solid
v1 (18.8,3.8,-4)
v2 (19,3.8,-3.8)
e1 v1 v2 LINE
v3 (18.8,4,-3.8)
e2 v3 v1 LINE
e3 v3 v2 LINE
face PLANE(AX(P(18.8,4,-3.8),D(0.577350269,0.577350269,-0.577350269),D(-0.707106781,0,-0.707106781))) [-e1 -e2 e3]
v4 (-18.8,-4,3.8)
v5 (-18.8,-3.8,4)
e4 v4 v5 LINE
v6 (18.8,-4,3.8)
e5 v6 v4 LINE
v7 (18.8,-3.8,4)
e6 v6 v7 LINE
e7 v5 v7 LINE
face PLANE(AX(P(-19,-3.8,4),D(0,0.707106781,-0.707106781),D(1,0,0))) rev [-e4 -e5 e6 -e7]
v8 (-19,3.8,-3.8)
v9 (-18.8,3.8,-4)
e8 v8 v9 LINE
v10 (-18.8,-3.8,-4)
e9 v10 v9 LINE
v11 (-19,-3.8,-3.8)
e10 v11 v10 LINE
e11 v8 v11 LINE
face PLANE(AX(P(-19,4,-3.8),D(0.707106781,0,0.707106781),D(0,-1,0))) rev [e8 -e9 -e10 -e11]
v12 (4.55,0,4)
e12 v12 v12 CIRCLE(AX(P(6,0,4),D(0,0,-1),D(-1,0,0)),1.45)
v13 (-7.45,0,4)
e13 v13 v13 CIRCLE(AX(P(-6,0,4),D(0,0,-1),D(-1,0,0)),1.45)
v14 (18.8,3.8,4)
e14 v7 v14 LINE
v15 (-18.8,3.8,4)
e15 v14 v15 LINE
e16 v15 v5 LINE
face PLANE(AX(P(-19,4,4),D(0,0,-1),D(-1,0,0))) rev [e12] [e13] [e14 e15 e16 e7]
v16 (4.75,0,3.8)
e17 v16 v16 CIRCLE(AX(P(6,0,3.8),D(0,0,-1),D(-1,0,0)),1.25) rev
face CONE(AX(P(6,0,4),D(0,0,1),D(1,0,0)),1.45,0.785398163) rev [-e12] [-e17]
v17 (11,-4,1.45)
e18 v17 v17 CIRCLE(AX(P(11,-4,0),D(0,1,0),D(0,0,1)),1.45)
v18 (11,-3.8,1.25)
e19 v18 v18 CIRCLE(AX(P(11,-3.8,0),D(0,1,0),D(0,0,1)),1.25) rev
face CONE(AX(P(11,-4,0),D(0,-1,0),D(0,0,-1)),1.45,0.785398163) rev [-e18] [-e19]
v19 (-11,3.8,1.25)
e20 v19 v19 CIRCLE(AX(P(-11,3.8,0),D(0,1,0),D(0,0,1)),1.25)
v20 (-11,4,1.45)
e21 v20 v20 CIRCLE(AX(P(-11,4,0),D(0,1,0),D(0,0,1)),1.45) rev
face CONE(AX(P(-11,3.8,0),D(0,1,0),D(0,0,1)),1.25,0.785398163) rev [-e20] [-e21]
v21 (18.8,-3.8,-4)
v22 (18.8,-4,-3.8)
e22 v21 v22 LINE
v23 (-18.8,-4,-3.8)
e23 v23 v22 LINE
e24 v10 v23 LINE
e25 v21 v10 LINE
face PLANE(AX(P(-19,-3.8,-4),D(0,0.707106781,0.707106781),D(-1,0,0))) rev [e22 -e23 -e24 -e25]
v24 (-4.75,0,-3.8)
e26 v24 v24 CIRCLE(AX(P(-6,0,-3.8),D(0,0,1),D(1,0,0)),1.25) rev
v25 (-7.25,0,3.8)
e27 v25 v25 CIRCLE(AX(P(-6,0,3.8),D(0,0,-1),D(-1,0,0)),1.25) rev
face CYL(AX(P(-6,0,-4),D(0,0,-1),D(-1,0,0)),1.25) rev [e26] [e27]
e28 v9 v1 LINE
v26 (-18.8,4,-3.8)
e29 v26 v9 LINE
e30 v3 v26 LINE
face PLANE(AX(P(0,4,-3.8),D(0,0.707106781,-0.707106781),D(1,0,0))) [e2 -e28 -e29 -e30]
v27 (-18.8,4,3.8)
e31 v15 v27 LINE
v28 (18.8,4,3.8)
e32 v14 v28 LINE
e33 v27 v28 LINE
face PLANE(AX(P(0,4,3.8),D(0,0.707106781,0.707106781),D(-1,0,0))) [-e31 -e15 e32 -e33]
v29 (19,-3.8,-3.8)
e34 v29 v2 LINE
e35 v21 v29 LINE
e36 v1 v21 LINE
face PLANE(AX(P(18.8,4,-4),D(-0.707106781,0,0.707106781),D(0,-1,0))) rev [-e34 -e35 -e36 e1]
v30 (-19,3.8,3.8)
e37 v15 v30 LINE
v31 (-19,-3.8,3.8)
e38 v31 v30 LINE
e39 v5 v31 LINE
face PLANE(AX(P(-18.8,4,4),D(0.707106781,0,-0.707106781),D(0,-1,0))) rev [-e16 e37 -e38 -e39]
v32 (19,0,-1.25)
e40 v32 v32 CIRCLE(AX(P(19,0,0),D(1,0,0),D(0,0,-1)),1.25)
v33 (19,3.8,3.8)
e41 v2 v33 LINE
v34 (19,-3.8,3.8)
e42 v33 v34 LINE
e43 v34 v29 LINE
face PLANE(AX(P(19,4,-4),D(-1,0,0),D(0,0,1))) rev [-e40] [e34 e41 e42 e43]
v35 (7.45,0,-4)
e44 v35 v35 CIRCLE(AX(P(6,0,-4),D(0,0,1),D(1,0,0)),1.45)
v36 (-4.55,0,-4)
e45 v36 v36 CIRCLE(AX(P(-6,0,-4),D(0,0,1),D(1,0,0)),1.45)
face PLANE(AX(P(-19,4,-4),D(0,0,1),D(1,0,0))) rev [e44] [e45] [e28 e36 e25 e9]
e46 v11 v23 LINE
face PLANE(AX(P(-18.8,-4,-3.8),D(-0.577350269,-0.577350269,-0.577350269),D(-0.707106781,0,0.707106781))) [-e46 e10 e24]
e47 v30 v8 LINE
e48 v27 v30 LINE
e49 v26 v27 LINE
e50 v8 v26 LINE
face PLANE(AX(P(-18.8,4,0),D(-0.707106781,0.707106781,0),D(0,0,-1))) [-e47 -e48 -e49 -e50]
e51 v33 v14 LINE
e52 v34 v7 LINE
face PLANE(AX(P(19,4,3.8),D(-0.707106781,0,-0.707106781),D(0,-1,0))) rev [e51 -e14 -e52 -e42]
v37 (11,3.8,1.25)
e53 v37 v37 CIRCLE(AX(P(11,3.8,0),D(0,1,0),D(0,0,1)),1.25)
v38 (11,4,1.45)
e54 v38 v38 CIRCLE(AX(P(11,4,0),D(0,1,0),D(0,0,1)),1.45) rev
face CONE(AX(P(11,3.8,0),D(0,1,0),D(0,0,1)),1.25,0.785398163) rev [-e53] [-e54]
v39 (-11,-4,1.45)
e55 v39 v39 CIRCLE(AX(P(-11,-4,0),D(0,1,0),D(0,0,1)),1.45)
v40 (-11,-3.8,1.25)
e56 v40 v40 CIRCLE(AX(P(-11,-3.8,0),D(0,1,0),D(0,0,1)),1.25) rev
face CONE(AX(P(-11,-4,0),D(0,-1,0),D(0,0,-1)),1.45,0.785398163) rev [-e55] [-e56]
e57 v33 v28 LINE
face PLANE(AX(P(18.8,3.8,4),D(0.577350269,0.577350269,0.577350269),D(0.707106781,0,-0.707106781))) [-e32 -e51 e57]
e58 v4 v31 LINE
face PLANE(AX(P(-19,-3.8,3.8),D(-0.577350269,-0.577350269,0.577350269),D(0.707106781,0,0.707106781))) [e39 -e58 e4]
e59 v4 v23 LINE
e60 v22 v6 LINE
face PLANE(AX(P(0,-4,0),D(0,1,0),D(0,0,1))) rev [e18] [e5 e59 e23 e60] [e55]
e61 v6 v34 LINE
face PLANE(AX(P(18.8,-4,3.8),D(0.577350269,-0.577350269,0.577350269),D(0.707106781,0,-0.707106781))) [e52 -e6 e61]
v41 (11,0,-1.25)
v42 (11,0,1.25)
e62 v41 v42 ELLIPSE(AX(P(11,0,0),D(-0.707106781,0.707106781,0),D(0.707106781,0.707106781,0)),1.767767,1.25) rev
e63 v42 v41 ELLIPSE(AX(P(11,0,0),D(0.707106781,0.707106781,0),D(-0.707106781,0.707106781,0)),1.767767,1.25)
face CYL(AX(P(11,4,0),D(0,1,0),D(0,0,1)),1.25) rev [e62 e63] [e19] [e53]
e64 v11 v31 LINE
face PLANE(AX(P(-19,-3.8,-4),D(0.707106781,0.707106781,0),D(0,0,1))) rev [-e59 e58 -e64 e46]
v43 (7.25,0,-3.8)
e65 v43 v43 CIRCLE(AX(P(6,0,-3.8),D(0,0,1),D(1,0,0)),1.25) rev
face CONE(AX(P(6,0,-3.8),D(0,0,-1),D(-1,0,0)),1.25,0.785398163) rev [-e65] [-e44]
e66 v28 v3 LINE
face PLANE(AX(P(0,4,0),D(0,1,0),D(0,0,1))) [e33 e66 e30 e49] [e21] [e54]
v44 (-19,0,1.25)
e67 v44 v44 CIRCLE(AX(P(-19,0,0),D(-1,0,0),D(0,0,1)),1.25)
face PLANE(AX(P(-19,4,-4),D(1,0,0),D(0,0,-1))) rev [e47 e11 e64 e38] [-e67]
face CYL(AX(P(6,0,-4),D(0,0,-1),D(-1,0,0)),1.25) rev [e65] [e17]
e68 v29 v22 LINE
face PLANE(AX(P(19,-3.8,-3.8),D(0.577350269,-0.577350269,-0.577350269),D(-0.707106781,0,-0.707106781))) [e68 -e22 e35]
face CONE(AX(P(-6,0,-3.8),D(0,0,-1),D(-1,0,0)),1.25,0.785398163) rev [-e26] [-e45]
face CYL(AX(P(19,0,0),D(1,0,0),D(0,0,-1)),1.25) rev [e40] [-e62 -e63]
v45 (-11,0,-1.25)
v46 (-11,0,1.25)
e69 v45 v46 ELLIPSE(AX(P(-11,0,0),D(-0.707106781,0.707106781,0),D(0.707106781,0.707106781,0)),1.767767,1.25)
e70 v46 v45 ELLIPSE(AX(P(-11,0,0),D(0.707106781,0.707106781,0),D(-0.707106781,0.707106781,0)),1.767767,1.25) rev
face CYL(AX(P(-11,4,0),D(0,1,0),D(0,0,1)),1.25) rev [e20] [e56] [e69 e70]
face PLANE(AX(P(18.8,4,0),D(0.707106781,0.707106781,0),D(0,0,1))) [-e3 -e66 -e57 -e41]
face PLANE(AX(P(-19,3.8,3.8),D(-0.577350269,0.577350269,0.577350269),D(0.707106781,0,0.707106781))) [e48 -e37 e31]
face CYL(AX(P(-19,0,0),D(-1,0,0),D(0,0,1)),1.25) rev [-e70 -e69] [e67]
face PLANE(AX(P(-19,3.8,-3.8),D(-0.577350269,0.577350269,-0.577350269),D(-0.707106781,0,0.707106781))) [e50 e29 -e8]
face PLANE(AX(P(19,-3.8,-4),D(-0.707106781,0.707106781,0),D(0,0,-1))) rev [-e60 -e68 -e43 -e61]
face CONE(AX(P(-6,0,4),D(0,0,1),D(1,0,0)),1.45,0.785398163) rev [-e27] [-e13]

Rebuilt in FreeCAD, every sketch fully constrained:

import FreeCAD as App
import Part
import Sketcher


def add_polygon(sketch, points):
    """Adds a closed chain of lines whose ends are joined by coincident constraints."""
    first, n = sketch.GeometryCount, len(points)
    for a, b in zip(points, points[1:] + points[:1]):
        sketch.addGeometry(Part.LineSegment(App.Vector(*a, 0), App.Vector(*b, 0)), False)
    for i in range(n):
        sketch.addConstraint(Sketcher.Constraint("Coincident", first + i, 2, first + (i + 1) % n, 1))

doc = App.newDocument("Part")
body = doc.addObject("PartDesign::Body", "Body")

sketch1 = doc.addObject("Sketcher::SketchObject", "Sketch")
body.addObject(sketch1)
sketch1.AttachmentSupport = (doc.XZ_Plane, [""])
sketch1.MapMode = "FlatFace"
add_polygon(sketch1, [(-19, -4), (-19, 4), (19, 4), (19, -4)])
sketch1.addConstraint(Sketcher.Constraint("Vertical", 0))
sketch1.addConstraint(Sketcher.Constraint("Horizontal", 1))
sketch1.addConstraint(Sketcher.Constraint("Vertical", 2))
sketch1.addConstraint(Sketcher.Constraint("Horizontal", 3))
sketch1.addConstraint(Sketcher.Constraint("Symmetric", 0, 2, 2, 2, -1, 1))
sketch1.addConstraint(Sketcher.Constraint("DistanceX", 1, 1, 1, 2, 38.0))
sketch1.addConstraint(Sketcher.Constraint("DistanceY", 0, 1, 0, 2, 8.0))
pad1 = doc.addObject("PartDesign::Pad", "Pad")
body.addObject(pad1)
pad1.Profile = sketch1
pad1.Length = 8
pad1.Midplane = True

sketch2 = doc.addObject("Sketcher::SketchObject", "Sketch001")
body.addObject(sketch2)
sketch2.AttachmentSupport = (doc.XZ_Plane, [""])
sketch2.MapMode = "FlatFace"
sketch2.AttachmentOffset = App.Placement(App.Vector(0, 0, -4), App.Rotation())
sketch2.addGeometry(Part.Circle(App.Vector(-11, 0, 0), App.Vector(0, 0, 1), 1.2), False)
sketch2.addGeometry(Part.Circle(App.Vector(11, 0, 0), App.Vector(0, 0, 1), 1.2), False)
sketch2.addConstraint(Sketcher.Constraint("Equal", 0, 1))
sketch2.addConstraint(Sketcher.Constraint("Symmetric", 0, 3, 1, 3, -1, 1))
sketch2.addConstraint(Sketcher.Constraint("PointOnObject", 0, 3, -1))
sketch2.addConstraint(Sketcher.Constraint("Diameter", 0, 2.5))
sketch2.addConstraint(Sketcher.Constraint("DistanceX", 0, 3, -1, 1, 11.0))
doc.recompute()
hole = doc.addObject("PartDesign::Hole", "Hole")
body.addObject(hole)
hole.Profile = sketch2
hole.ThreadType = "None"
hole.Diameter = 2.5
hole.DepthType = "ThroughAll"
hole.Reversed = True

sketch3 = doc.addObject("Sketcher::SketchObject", "Sketch002")
body.addObject(sketch3)
sketch3.AttachmentSupport = (doc.XY_Plane, [""])
sketch3.MapMode = "FlatFace"
sketch3.AttachmentOffset = App.Placement(App.Vector(0, 0, -4), App.Rotation())
sketch3.addGeometry(Part.Circle(App.Vector(6, 0, 0), App.Vector(0, 0, 1), 1.2), False)
sketch3.addGeometry(Part.Circle(App.Vector(-6, 0, 0), App.Vector(0, 0, 1), 1.2), False)
sketch3.addConstraint(Sketcher.Constraint("Equal", 0, 1))
sketch3.addConstraint(Sketcher.Constraint("Symmetric", 0, 3, 1, 3, -1, 1))
sketch3.addConstraint(Sketcher.Constraint("PointOnObject", 0, 3, -1))
sketch3.addConstraint(Sketcher.Constraint("Diameter", 0, 2.5))
sketch3.addConstraint(Sketcher.Constraint("DistanceX", -1, 1, 0, 3, 6.0))
doc.recompute()
hole2 = doc.addObject("PartDesign::Hole", "Hole001")
body.addObject(hole2)
hole2.Profile = sketch3
hole2.ThreadType = "None"
hole2.Diameter = 2.5
hole2.DepthType = "ThroughAll"
hole2.Reversed = True
doc.recompute()

chamfer = doc.addObject("PartDesign::Chamfer", "Chamfer")
body.addObject(chamfer)
chamfer.Base = (hole2, ["Edge1"])
chamfer.UseAllEdges = True
chamfer.Size = 0.2

sketch4 = doc.addObject("Sketcher::SketchObject", "Sketch003")
body.addObject(sketch4)
sketch4.AttachmentSupport = (doc.YZ_Plane, [""])
sketch4.MapMode = "FlatFace"
sketch4.AttachmentOffset = App.Placement(App.Vector(0, 0, -19), App.Rotation())
sketch4.addGeometry(Part.Circle(App.Vector(0, 0, 0), App.Vector(0, 0, 1), 1.2), False)
sketch4.addConstraint(Sketcher.Constraint("Coincident", 0, 3, -1, 1))
sketch4.addConstraint(Sketcher.Constraint("Diameter", 0, 2.5))
pocket1 = doc.addObject("PartDesign::Pocket", "Pocket")
body.addObject(pocket1)
pocket1.Profile = sketch4
pocket1.Length = 8
pocket1.Reversed = True

sketch5 = doc.addObject("Sketcher::SketchObject", "Sketch004")
body.addObject(sketch5)
sketch5.AttachmentSupport = (doc.YZ_Plane, [""])
sketch5.MapMode = "FlatFace"
sketch5.AttachmentOffset = App.Placement(App.Vector(0, 0, 19), App.Rotation())
sketch5.addGeometry(Part.Circle(App.Vector(0, 0, 0), App.Vector(0, 0, 1), 1.2), False)
sketch5.addConstraint(Sketcher.Constraint("Coincident", 0, 3, -1, 1))
sketch5.addConstraint(Sketcher.Constraint("Diameter", 0, 2.5))
pocket2 = doc.addObject("PartDesign::Pocket", "Pocket001")
body.addObject(pocket2)
pocket2.Profile = sketch5
pocket2.Type = "UpToFirst"

doc.recompute()
